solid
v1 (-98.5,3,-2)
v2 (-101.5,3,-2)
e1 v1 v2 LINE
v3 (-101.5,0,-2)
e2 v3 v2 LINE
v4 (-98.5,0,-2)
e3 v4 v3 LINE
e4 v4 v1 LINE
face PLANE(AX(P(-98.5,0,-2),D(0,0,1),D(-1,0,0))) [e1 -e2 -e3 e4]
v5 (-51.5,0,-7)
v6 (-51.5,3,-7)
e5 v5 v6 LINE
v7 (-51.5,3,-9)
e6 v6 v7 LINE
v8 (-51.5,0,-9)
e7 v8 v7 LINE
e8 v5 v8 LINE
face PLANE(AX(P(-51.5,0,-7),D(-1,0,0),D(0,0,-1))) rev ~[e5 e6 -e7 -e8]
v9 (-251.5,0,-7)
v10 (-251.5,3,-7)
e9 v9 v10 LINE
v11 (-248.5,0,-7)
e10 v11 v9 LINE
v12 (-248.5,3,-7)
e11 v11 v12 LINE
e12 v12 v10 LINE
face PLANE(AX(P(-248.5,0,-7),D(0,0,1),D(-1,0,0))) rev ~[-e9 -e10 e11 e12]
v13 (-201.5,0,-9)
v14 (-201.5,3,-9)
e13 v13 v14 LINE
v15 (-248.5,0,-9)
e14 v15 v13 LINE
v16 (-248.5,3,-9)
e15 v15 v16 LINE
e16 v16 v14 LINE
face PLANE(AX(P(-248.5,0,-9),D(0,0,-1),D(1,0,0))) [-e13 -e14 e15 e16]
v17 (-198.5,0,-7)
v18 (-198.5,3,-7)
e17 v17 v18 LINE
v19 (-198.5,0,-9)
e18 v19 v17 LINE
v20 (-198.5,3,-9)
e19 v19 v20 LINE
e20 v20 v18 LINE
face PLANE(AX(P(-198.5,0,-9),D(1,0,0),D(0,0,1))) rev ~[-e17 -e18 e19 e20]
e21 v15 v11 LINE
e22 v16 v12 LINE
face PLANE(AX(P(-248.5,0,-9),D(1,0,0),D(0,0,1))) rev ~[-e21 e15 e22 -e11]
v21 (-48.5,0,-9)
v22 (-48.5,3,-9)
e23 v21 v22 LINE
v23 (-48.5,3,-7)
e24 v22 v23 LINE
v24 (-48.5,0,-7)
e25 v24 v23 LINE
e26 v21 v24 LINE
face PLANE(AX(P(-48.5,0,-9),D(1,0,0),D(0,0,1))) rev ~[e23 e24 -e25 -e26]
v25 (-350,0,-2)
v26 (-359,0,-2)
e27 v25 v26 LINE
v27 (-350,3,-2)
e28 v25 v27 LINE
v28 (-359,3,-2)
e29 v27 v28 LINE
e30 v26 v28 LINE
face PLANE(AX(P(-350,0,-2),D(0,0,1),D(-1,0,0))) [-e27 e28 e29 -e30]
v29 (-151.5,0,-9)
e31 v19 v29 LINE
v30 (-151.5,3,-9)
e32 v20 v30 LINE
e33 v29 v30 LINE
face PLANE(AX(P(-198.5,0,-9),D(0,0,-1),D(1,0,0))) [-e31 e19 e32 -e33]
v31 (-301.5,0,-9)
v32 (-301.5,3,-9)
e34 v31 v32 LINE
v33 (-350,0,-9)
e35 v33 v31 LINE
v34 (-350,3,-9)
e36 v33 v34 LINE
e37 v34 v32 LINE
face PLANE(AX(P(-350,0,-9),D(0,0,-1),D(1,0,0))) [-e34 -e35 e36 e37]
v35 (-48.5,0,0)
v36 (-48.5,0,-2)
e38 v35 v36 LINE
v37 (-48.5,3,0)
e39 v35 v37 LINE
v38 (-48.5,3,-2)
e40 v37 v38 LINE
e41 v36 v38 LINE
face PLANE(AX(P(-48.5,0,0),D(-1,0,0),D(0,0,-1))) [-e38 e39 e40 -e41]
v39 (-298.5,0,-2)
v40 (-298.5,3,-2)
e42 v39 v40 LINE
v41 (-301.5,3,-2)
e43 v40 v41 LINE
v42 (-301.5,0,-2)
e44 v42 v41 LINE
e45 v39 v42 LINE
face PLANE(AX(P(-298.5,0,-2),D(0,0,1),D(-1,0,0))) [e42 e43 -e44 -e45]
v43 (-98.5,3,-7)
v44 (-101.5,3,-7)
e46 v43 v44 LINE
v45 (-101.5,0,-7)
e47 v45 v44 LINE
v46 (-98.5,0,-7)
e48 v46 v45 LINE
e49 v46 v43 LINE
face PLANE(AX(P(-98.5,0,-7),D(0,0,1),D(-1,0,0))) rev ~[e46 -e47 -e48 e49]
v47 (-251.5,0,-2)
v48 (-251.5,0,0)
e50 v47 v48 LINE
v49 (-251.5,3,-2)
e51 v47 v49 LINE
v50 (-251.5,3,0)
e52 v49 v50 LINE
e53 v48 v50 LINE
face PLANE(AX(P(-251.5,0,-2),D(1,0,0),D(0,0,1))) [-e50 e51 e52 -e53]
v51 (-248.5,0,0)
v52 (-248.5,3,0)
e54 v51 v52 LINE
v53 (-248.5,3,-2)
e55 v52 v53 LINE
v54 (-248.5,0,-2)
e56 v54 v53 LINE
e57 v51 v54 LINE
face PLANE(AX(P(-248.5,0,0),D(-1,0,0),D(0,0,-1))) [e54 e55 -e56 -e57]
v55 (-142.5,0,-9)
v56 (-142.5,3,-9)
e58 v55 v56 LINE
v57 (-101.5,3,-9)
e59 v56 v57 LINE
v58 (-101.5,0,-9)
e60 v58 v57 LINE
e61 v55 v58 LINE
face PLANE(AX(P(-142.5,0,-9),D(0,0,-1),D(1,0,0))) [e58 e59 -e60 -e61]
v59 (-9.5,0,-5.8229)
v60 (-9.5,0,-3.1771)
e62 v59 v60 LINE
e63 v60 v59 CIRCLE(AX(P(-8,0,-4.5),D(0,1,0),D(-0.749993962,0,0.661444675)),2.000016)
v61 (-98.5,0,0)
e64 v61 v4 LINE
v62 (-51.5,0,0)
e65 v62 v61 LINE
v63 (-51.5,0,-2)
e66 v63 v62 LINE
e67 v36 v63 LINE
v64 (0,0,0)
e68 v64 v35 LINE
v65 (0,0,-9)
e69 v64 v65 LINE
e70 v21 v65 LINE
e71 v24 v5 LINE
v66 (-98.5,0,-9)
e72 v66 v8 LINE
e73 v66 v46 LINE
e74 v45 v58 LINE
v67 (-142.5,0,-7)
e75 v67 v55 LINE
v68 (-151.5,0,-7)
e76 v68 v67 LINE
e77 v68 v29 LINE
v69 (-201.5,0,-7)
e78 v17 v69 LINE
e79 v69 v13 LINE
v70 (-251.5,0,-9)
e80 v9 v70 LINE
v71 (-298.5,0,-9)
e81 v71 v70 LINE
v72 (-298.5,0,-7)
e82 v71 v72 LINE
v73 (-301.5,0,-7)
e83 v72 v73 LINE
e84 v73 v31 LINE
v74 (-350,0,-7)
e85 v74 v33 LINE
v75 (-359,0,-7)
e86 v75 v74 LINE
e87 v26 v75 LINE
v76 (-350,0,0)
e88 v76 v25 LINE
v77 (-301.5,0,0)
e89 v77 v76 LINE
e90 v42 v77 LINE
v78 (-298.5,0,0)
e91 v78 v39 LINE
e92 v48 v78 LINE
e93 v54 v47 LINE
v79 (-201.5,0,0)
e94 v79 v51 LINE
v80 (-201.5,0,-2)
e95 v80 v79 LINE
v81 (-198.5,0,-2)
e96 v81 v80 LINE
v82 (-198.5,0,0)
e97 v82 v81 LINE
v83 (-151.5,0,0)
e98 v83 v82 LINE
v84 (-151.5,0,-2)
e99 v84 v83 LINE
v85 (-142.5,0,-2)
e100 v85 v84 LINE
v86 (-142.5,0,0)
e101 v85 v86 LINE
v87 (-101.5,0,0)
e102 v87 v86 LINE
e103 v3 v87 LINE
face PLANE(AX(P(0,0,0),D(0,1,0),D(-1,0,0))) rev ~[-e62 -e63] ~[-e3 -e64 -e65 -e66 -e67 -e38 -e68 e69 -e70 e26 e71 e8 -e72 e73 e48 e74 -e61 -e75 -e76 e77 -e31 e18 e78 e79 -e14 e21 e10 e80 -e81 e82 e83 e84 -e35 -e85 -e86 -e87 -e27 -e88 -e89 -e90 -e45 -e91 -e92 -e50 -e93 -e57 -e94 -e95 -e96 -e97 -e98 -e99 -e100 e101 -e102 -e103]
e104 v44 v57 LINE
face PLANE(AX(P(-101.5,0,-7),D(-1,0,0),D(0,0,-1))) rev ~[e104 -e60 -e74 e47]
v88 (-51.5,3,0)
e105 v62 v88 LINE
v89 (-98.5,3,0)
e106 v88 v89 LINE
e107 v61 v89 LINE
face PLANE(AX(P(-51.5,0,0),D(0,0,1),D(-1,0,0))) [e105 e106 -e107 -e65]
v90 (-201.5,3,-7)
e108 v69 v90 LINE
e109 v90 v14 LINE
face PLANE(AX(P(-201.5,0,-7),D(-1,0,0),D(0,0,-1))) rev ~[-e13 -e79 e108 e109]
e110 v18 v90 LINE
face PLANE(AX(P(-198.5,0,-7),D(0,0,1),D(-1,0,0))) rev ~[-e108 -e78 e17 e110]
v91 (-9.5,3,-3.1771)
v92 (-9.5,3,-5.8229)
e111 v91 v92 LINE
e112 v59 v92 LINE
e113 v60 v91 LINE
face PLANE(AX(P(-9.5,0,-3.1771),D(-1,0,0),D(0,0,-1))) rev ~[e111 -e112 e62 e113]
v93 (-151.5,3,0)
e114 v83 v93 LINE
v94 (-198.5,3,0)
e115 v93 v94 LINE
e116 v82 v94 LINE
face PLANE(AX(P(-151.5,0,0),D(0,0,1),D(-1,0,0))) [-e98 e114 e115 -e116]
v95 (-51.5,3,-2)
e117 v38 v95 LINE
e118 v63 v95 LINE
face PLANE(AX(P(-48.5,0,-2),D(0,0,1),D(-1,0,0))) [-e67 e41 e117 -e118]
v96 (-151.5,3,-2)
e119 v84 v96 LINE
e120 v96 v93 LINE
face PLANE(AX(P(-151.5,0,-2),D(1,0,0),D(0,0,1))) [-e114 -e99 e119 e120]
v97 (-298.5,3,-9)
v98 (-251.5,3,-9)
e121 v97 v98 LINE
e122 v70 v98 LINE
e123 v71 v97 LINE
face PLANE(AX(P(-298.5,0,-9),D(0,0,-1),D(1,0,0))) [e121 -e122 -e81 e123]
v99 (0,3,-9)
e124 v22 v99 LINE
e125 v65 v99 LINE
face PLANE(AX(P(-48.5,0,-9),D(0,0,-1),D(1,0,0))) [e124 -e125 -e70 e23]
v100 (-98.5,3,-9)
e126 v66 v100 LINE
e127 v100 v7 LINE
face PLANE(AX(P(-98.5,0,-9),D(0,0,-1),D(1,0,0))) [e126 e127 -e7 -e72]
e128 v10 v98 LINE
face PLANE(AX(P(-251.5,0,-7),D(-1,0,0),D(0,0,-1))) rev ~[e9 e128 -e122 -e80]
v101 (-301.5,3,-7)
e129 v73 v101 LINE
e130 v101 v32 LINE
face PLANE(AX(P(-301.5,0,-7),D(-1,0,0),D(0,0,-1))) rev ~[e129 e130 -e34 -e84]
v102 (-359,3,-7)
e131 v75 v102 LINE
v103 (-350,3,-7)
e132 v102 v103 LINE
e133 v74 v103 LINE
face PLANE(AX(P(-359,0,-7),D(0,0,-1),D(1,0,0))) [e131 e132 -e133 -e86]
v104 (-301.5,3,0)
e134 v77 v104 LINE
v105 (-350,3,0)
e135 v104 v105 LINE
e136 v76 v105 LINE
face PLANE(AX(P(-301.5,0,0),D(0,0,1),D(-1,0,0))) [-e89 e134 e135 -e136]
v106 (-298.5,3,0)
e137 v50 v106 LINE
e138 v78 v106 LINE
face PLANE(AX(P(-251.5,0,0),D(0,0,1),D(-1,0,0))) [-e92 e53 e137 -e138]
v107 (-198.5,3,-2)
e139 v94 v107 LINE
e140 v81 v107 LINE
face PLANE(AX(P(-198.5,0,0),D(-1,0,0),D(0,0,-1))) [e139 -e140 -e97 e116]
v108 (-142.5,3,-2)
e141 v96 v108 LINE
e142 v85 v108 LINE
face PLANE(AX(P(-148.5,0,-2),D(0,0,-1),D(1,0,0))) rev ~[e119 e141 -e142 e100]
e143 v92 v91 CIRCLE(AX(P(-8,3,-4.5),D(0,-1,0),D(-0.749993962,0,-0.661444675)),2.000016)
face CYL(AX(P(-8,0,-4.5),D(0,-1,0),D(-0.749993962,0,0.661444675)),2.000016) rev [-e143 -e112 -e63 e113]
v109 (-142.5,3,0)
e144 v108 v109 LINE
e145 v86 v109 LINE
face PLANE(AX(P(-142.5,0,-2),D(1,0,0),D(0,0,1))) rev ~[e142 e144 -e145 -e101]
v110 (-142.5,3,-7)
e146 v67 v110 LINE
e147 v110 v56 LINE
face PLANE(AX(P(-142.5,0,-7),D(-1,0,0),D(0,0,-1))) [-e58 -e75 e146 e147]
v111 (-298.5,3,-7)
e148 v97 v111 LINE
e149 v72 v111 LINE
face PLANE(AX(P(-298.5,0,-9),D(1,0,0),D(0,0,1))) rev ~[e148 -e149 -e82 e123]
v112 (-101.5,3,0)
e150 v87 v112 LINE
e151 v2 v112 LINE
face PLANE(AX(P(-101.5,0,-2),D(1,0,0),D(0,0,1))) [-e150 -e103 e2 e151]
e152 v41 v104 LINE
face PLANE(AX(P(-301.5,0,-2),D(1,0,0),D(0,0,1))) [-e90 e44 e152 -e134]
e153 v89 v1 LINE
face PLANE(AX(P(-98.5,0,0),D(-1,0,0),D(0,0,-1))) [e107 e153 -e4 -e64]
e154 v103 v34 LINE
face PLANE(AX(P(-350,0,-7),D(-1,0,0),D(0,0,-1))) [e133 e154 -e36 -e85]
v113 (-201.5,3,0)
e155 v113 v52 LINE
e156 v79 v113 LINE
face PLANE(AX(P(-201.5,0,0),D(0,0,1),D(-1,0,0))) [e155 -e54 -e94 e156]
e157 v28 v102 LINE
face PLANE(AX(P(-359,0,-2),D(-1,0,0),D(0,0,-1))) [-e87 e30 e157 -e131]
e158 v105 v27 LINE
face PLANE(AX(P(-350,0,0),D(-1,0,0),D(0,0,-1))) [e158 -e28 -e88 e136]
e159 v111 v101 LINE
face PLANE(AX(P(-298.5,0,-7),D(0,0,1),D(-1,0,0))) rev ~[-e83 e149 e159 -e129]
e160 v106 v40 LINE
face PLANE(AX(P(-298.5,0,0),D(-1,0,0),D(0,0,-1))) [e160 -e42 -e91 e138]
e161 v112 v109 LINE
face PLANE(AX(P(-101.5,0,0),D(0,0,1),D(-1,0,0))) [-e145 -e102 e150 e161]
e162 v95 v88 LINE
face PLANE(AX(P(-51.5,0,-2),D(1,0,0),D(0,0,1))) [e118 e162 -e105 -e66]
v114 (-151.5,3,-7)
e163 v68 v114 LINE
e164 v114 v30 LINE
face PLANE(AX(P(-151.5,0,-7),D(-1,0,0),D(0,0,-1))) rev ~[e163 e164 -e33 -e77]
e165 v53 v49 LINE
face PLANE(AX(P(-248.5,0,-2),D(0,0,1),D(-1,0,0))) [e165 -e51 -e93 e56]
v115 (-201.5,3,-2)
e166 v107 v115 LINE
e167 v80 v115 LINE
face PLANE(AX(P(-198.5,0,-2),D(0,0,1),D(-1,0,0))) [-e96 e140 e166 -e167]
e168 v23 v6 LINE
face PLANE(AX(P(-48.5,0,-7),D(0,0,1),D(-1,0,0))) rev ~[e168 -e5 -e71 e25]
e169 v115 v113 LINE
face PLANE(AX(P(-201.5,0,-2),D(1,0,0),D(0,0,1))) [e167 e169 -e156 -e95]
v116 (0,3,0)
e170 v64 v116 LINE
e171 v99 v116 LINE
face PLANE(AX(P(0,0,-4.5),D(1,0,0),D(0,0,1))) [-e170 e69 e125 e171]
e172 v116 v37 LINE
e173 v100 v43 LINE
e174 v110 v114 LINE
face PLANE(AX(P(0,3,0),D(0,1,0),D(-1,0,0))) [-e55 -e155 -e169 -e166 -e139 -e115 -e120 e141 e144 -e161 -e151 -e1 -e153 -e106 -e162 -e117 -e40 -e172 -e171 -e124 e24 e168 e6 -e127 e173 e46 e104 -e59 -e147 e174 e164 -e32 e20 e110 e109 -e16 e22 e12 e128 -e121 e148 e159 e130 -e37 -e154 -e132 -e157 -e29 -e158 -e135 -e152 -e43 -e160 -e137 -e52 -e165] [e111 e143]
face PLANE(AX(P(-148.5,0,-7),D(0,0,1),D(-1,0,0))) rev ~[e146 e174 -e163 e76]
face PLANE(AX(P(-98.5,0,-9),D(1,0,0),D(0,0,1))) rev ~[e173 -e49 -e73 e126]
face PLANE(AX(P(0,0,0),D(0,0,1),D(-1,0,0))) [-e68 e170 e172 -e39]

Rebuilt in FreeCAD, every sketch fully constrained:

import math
import FreeCAD as App
import Part
import Sketcher

V = App.Vector


def add_polygon(sketch, points):
    """Adds a closed chain of lines whose ends are joined by coincident constraints."""
    first, n = sketch.GeometryCount, len(points)
    for a, b in zip(points, points[1:] + points[:1]):
        sketch.addGeometry(Part.LineSegment(App.Vector(*a, 0), App.Vector(*b, 0)), False)
    for i in range(n):
        sketch.addConstraint(Sketcher.Constraint("Coincident", first + i, 2, first + (i + 1) % n, 1))

doc = App.newDocument("Part")
params = doc.addObject("Spreadsheet::Sheet", "Params")
for row, (alias, value) in enumerate([
    ("sketch1_radius", "2 mm"),
    ("sketch1_width", "3 mm"),
    ("sketch1_width2", "9 mm"),
    ("sketch1_height", "2 mm"),
    ("pad1_length", "3 mm"),
], start=1):
    params.set(f"A{row}", alias)
    params.set(f"B{row}", "=" + value)
    params.setAlias(f"B{row}", alias)

body = doc.addObject("PartDesign::Body", "Body")

sketch1 = body.newObject("Sketcher::SketchObject", "Sketch")
sketch1.AttachmentSupport = (doc.getObject("XZ_Plane"), [""])
sketch1.MapMode = "FlatFace"
add_polygon(sketch1, [(-48.5, 0), (0, 0), (0, -9), (-48.5, -9), (-48.5, -7), (-51.5, -7), (-51.5, -9), (-98.5, -9), (-98.5, -7), (-101.5, -7), (-101.5, -9), (-142.5, -9), (-142.5, -7), (-151.5, -7), (-151.5, -9), (-198.5, -9), (-198.5, -7), (-201.5, -7), (-201.5, -9), (-248.5, -9), (-248.5, -7), (-251.5, -7), (-251.5, -9), (-298.5, -9), (-298.5, -7), (-301.5, -7), (-301.5, -9), (-350, -9), (-350, -7), (-359, -7), (-359, -2), (-350, -2), (-350, 0), (-301.5, 0), (-301.5, -2), (-298.5, -2), (-298.5, 0), (-251.5, 0), (-251.5, -2), (-248.5, -2), (-248.5, 0), (-201.5, 0), (-201.5, -2), (-198.5, -2), (-198.5, 0), (-151.5, 0), (-151.5, -2), (-142.5, -2), (-142.5, 0), (-101.5, 0), (-101.5, -2), (-98.5, -2), (-98.5, 0), (-51.5, 0), (-51.5, -2), (-48.5, -2)])
sketch1.addGeometry(Part.LineSegment(V(-9.5, -3.2, 0), V(-9.5, -5.8, 0)), False)
sketch1.addGeometry(Part.ArcOfCircle(Part.Circle(V(-8, -4.5, 0), V(0, 0, 1), 2), math.radians(-139), math.radians(139)), False)
sketch1.addConstraint([
    Sketcher.Constraint("Coincident", 56, 1, 57, 2),
    Sketcher.Constraint("Coincident", 57, 1, 56, 2),
    Sketcher.Constraint("Horizontal", 0),
    Sketcher.Constraint("Vertical", 1),
    Sketcher.Constraint("Horizontal", 2),
    Sketcher.Constraint("Vertical", 3),
    Sketcher.Constraint("Horizontal", 4),
    Sketcher.Constraint("Vertical", 5),
    Sketcher.Constraint("Horizontal", 6),
    Sketcher.Constraint("Vertical", 7),
    Sketcher.Constraint("Horizontal", 8),
    Sketcher.Constraint("Vertical", 9),
    Sketcher.Constraint("Horizontal", 10),
    Sketcher.Constraint("Vertical", 11),
    Sketcher.Constraint("Horizontal", 12),
    Sketcher.Constraint("Vertical", 13),
    Sketcher.Constraint("Horizontal", 14),
    Sketcher.Constraint("Vertical", 15),
    Sketcher.Constraint("Horizontal", 16),
    Sketcher.Constraint("Vertical", 17),
    Sketcher.Constraint("Horizontal", 18),
    Sketcher.Constraint("Vertical", 19),
    Sketcher.Constraint("Horizontal", 20),
    Sketcher.Constraint("Vertical", 21),
    Sketcher.Constraint("Horizontal", 22),
    Sketcher.Constraint("Vertical", 23),
    Sketcher.Constraint("Horizontal", 24),
    Sketcher.Constraint("Vertical", 25),
    Sketcher.Constraint("Horizontal", 26),
    Sketcher.Constraint("Vertical", 27),
    Sketcher.Constraint("Horizontal", 28),
    Sketcher.Constraint("Vertical", 29),
    Sketcher.Constraint("Horizontal", 30),
    Sketcher.Constraint("Vertical", 31),
    Sketcher.Constraint("Horizontal", 32),
    Sketcher.Constraint("Vertical", 33),
    Sketcher.Constraint("Horizontal", 34),
    Sketcher.Constraint("Vertical", 35),
    Sketcher.Constraint("Horizontal", 36),
    Sketcher.Constraint("Vertical", 37),
    Sketcher.Constraint("Horizontal", 38),
    Sketcher.Constraint("Vertical", 39),
    Sketcher.Constraint("Horizontal", 40),
    Sketcher.Constraint("Vertical", 41),
    Sketcher.Constraint("Horizontal", 42),
    Sketcher.Constraint("Vertical", 43),
    Sketcher.Constraint("Horizontal", 44),
    Sketcher.Constraint("Vertical", 45),
    Sketcher.Constraint("Horizontal", 46),
    Sketcher.Constraint("Vertical", 47),
    Sketcher.Constraint("Horizontal", 48),
    Sketcher.Constraint("Vertical", 49),
    Sketcher.Constraint("Horizontal", 50),
    Sketcher.Constraint("Vertical", 51),
    Sketcher.Constraint("Horizontal", 52),
    Sketcher.Constraint("Vertical", 53),
    Sketcher.Constraint("Horizontal", 54),
    Sketcher.Constraint("Vertical", 55),
    Sketcher.Constraint("Vertical", 56),
    Sketcher.Constraint("Coincident", 0, 2, -1, 1),
    Sketcher.Constraint("PointOnObject", 31, 2, -1),
    Sketcher.Constraint("PointOnObject", 35, 2, -1),
    Sketcher.Constraint("PointOnObject", 39, 2, -1),
    Sketcher.Constraint("PointOnObject", 43, 2, -1),
    Sketcher.Constraint("PointOnObject", 47, 2, -1),
    Sketcher.Constraint("PointOnObject", 51, 2, -1),
    Sketcher.Constraint("Horizontal", 2, 2, 5, 2),
    Sketcher.Constraint("Horizontal", 4, 2, 7, 2),
    Sketcher.Constraint("Horizontal", 6, 2, 9, 2),
    Sketcher.Constraint("Horizontal", 8, 2, 11, 2),
    Sketcher.Constraint("Horizontal", 10, 2, 13, 2),
    Sketcher.Constraint("Horizontal", 12, 2, 15, 2),
    Sketcher.Constraint("Horizontal", 14, 2, 17, 2),
    Sketcher.Constraint("Horizontal", 16, 2, 19, 2),
    Sketcher.Constraint("Horizontal", 18, 2, 21, 2),
    Sketcher.Constraint("Horizontal", 20, 2, 23, 2),
    Sketcher.Constraint("Horizontal", 22, 2, 25, 2),
    Sketcher.Constraint("Horizontal", 24, 2, 27, 2),
    Sketcher.Constraint("Horizontal", 30, 2, 33, 2),
    Sketcher.Constraint("Horizontal", 34, 2, 37, 2),
    Sketcher.Constraint("Horizontal", 38, 2, 41, 2),
    Sketcher.Constraint("Horizontal", 42, 2, 45, 2),
    Sketcher.Constraint("Horizontal", 46, 2, 49, 2),
    Sketcher.Constraint("Horizontal", 50, 2, 53, 2),
    Sketcher.Constraint("Vertical", 27, 2, 30, 2),
    Sketcher.Constraint("Vertical", 25, 2, 32, 2),
    Sketcher.Constraint("Vertical", 23, 2, 34, 2),
    Sketcher.Constraint("Vertical", 21, 2, 36, 2),
    Sketcher.Constraint("Vertical", 19, 2, 38, 2),
    Sketcher.Constraint("Vertical", 17, 2, 40, 2),
    Sketcher.Constraint("Vertical", 15, 2, 42, 2),
    Sketcher.Constraint("Vertical", 13, 2, 44, 2),
    Sketcher.Constraint("Vertical", 11, 2, 46, 2),
    Sketcher.Constraint("Vertical", 9, 2, 48, 2),
    Sketcher.Constraint("Vertical", 7, 2, 50, 2),
    Sketcher.Constraint("Vertical", 5, 2, 52, 2),
    Sketcher.Constraint("Vertical", 3, 2, 54, 2),
    Sketcher.Constraint("Equal", 4, 8),
    Sketcher.Constraint("Equal", 6, 14),
    Sketcher.Constraint("Equal", 8, 16),
    Sketcher.Constraint("Equal", 14, 18),
    Sketcher.Constraint("Equal", 16, 20),
    Sketcher.Constraint("Equal", 18, 22),
    Sketcher.Constraint("Equal", 20, 24),
    Sketcher.Constraint("Equal", 2, 26),
    Sketcher.Constraint("Equal", 12, 28),
    Sketcher.Constraint("Equal", 46, 1),
    Sketcher.Constraint("Equal", 27, 31),
    Sketcher.Constraint("Radius", 57, 2.0),
    Sketcher.Constraint("DistanceX", 4, 2, 4, 1, 3.0),
    Sketcher.Constraint("DistanceX", 12, 2, 12, 1, 9.0),
    Sketcher.Constraint("DistanceY", 3, 1, 3, 2, 2.0),
    Sketcher.Constraint("DistanceX", 57, 3, -1, 1, 8.0),
    Sketcher.Constraint("DistanceX", 26, 2, -1, 1, 350.0),
    Sketcher.Constraint("DistanceX", 6, 2, 2, 2, 50.0),
    Sketcher.Constraint("DistanceX", 12, 2, 8, 2, 50.0),
    Sketcher.Constraint("DistanceX", 56, 1, 57, 3, 1.5),
    Sketcher.Constraint("DistanceY", 57, 3, -1, 1, 4.5),
])
sketch1.setExpression("Constraints[164]", "Params.sketch1_radius")
sketch1.setExpression("Constraints[165]", "Params.sketch1_width")
sketch1.setExpression("Constraints[166]", "Params.sketch1_width2")
sketch1.setExpression("Constraints[167]", "Params.sketch1_height")
pad1 = body.newObject("PartDesign::Pad", "Pad")
pad1.Profile = sketch1
pad1.setExpression("Length", "Params.pad1_length")
pad1.Reversed = True

doc.recompute()
